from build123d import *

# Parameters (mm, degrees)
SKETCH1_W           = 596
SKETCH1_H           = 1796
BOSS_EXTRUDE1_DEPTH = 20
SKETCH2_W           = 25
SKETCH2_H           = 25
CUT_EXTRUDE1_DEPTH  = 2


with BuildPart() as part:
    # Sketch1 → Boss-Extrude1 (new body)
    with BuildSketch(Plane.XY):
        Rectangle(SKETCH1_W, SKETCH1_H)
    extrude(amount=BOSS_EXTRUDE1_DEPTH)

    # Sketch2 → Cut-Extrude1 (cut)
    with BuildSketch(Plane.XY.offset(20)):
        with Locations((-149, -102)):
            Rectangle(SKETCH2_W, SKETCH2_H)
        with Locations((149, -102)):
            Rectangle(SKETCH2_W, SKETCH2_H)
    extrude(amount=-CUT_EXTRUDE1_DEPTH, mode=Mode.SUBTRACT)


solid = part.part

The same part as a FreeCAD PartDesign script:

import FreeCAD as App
import Part
import Sketcher

V = App.Vector
Q = App.Units.Quantity


def add_polygon(sketch, points):
    """Adds a closed chain of lines whose ends are joined by coincident constraints."""
    first, n = sketch.GeometryCount, len(points)
    for a, b in zip(points, points[1:] + points[:1]):
        sketch.addGeometry(Part.LineSegment(App.Vector(*a, 0), App.Vector(*b, 0)), False)
    for i in range(n):
        sketch.addConstraint(Sketcher.Constraint("Coincident", first + i, 2, first + (i + 1) % n, 1))

doc = App.newDocument("Part")
params = doc.addObject("Spreadsheet::Sheet", "Params")
for row, (alias, value) in enumerate([
    ("sketch1_width", "596 mm"),
    ("sketch1_height", "1796 mm"),
    ("pad1_length", "20 mm"),
    ("sketch2_width", "25 mm"),
    ("pocket1_length", "2 mm"),
], start=1):
    params.set(f"A{row}", alias)
    params.set(f"B{row}", "=" + value)
    params.setAlias(f"B{row}", alias)

body = doc.addObject("PartDesign::Body", "Body")

# Sketch on XY plane
sketch1 = doc.addObject("Sketcher::SketchObject", "Sketch")
body.addObject(sketch1)
sketch1.AttachmentSupport = (doc.XY_Plane, [""])
sketch1.MapMode = "FlatFace"
add_polygon(sketch1, [(-298, 898), (-298, -898), (298, -898), (298, 898)])  # lines 0-3
sketch1.addConstraint([
    Sketcher.Constraint("Vertical", 0),
    Sketcher.Constraint("Horizontal", 1),
    Sketcher.Constraint("Vertical", 2),
    Sketcher.Constraint("Horizontal", 3),
    Sketcher.Constraint("Symmetric", 0, 2, 2, 2, -1, 1),
    Sketcher.Constraint("DistanceX", 1, 1, 1, 2, Q("596 mm")),
    Sketcher.Constraint("DistanceY", 0, 2, 0, 1, Q("1796 mm")),
])
sketch1.setExpression("Constraints[9]", "Params.sketch1_width")
sketch1.setExpression("Constraints[10]", "Params.sketch1_height")
pad1 = doc.addObject("PartDesign::Pad", "Pad")
body.addObject(pad1)
pad1.Profile = sketch1
pad1.setExpression("Length", "Params.pad1_length")

# Sketch on XY plane
sketch2 = doc.addObject("Sketcher::SketchObject", "Sketch001")
body.addObject(sketch2)
sketch2.AttachmentSupport = (doc.XY_Plane, [""])
sketch2.MapMode = "FlatFace"
sketch2.AttachmentOffset = App.Placement(V(0, 0, 20), App.Rotation())
add_polygon(sketch2, [(-162, -90), (-162, -114), (-136, -114), (-136, -90)])  # lines 0-3
add_polygon(sketch2, [(136, -90), (136, -114), (162, -114), (162, -90)])  # lines 4-7
sketch2.addConstraint([
    Sketcher.Constraint("Vertical", 0),
    Sketcher.Constraint("Horizontal", 1),
    Sketcher.Constraint("Vertical", 2),
    Sketcher.Constraint("Horizontal", 3),
    Sketcher.Constraint("Vertical", 4),
    Sketcher.Constraint("Horizontal", 5),
    Sketcher.Constraint("Vertical", 6),
    Sketcher.Constraint("Horizontal", 7),
    Sketcher.Constraint("Symmetric", 1, 2, 4, 2, -2),
    Sketcher.Constraint("Symmetric", 3, 2, 6, 2, -2),
    Sketcher.Constraint("Equal", 7, 0),
    Sketcher.Constraint("DistanceX", 1, 1, 1, 2, Q("25 mm")),
    Sketcher.Constraint("DistanceX", 1, 2, 4, 2, Q("273 mm")),
    Sketcher.Constraint("DistanceY", 0, 2, -1, 1, Q("114.5 mm")),
])
sketch2.setExpression("Constraints[19]", "Params.sketch2_width")
pocket1 = doc.addObject("PartDesign::Pocket", "Pocket")
body.addObject(pocket1)
pocket1.Profile = sketch2
pocket1.setExpression("Length", "Params.pocket1_length")

doc.recompute()
